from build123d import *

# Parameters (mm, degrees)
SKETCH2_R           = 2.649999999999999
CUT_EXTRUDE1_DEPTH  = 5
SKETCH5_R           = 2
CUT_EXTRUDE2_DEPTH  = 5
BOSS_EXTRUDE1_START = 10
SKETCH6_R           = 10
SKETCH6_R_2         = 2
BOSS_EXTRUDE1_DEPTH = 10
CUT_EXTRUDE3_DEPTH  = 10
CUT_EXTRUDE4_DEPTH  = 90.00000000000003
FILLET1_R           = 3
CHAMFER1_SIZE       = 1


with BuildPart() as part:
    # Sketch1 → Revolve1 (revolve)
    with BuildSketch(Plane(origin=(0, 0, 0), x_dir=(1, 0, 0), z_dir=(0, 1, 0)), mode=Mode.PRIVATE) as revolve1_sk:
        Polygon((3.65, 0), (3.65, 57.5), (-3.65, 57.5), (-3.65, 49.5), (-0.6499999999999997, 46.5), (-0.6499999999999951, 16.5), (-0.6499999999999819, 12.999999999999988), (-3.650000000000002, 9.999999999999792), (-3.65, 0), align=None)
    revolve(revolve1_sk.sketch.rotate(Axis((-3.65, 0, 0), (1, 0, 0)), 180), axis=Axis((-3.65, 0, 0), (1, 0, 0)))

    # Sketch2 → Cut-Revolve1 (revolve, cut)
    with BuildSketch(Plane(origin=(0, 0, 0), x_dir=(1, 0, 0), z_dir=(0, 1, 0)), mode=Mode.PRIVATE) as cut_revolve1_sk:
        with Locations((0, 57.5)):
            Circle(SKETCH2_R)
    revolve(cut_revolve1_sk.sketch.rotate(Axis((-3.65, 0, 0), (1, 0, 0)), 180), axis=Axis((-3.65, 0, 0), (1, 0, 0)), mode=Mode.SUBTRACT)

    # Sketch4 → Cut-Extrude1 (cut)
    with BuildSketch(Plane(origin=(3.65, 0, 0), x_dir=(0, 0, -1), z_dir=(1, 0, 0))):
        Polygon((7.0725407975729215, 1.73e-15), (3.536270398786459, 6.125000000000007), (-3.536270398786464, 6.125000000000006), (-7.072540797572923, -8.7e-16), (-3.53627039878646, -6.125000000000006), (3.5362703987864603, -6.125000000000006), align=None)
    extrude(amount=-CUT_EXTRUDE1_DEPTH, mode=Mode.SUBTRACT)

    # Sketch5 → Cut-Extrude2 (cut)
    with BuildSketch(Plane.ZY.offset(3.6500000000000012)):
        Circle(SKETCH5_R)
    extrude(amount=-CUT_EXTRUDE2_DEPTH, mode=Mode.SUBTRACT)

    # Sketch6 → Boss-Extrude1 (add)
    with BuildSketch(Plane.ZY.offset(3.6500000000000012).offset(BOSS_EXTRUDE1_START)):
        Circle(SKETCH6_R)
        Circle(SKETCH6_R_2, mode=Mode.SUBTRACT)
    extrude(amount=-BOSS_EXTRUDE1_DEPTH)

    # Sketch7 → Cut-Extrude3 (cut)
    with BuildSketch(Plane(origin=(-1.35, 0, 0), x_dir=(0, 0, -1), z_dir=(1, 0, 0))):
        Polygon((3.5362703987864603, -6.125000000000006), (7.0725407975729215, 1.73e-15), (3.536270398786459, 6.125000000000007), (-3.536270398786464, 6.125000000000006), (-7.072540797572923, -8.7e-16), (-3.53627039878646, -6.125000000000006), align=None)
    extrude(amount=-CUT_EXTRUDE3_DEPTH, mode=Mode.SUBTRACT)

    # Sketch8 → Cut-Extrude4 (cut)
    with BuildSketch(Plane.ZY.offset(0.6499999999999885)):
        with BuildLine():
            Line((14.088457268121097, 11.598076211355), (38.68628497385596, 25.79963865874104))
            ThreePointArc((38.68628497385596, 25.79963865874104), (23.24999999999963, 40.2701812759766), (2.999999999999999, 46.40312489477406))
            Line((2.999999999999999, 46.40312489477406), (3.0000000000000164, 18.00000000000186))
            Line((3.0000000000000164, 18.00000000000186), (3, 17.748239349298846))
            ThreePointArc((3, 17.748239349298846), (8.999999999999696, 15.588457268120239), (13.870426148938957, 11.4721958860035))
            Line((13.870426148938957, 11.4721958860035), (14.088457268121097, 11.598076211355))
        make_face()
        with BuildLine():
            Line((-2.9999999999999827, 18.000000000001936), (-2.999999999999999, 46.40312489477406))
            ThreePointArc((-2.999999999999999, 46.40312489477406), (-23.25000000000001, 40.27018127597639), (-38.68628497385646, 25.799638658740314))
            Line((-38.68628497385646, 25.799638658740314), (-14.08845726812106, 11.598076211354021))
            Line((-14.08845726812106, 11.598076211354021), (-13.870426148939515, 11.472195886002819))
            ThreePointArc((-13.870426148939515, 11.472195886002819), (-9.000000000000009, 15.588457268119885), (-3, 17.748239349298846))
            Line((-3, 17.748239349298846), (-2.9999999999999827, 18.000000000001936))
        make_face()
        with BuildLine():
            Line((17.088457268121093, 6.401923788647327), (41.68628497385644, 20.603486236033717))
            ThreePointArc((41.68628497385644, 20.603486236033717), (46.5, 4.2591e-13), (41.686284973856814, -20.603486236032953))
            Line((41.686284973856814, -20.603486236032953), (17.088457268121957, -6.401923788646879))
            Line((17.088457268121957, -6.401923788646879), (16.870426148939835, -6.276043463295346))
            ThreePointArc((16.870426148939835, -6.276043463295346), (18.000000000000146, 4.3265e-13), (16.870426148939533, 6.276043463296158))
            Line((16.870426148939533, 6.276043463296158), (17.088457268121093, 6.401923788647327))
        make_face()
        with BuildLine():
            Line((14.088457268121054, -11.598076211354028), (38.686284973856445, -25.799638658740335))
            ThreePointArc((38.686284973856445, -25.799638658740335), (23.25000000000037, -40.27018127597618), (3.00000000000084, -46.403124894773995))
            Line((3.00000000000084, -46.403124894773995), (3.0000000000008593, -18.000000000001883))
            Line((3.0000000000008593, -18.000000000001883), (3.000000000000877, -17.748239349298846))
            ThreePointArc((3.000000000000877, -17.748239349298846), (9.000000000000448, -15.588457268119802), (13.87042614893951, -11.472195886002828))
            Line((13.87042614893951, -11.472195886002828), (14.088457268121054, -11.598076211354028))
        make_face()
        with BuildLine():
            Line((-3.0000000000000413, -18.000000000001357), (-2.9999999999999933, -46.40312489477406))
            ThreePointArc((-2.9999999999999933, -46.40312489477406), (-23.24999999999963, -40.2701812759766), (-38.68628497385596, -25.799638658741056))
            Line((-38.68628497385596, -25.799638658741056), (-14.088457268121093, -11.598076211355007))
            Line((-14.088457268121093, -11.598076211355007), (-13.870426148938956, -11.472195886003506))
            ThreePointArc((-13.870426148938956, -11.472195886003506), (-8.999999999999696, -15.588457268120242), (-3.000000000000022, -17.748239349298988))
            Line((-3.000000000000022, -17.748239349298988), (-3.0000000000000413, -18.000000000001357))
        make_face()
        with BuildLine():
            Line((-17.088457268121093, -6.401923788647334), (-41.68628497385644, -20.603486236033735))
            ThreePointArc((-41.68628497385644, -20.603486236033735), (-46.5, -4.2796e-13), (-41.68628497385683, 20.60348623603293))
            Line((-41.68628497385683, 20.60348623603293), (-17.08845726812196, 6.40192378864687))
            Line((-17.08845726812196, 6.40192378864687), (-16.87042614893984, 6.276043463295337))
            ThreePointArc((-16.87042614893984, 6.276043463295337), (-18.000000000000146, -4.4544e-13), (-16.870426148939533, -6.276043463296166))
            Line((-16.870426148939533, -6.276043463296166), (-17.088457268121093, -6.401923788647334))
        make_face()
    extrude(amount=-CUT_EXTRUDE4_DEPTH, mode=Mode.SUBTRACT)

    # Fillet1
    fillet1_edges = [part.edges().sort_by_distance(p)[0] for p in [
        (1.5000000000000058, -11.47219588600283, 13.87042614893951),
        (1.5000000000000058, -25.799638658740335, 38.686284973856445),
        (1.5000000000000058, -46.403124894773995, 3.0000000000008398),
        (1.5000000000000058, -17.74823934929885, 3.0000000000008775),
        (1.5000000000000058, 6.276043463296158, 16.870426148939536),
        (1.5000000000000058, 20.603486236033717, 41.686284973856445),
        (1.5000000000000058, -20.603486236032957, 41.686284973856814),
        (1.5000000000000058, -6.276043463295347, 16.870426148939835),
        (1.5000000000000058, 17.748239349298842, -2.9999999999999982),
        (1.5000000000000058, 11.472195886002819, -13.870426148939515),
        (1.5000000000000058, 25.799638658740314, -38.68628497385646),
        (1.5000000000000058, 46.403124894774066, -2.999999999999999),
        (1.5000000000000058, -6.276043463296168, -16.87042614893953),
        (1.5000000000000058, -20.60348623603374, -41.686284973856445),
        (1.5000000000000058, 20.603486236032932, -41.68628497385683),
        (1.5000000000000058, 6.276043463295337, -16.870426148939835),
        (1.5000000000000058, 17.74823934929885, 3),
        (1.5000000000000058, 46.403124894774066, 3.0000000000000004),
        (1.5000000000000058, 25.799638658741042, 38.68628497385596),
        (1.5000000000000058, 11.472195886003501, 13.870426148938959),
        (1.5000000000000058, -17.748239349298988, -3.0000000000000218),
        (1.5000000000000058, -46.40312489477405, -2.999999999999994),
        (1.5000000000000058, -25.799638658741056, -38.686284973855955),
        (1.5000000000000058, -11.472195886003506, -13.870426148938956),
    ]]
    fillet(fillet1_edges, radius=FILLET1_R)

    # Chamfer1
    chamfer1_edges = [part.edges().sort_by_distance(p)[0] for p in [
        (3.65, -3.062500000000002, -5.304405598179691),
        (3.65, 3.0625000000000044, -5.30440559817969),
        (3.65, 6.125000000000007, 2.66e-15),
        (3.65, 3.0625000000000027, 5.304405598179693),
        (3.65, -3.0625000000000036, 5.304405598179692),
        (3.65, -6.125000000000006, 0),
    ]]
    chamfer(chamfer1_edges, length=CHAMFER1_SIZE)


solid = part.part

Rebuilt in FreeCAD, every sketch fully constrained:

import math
import FreeCAD as App
import Part
import Sketcher
from FreeCAD import Vector
Q = App.Units.Quantity


def edges_at(feature, points):
    """Names of the edges that pass closest to the given points."""
    edges = feature.Shape.Edges
    near = lambda p: min(range(len(edges)), key=lambda i: edges[i].distToShape(Part.Vertex(*p))[0])
    return sorted({f"Edge{near(p) + 1}" for p in points})


def add_polygon(sketch, points):
    """Adds a closed chain of lines whose ends are joined by coincident constraints."""
    first, n = sketch.GeometryCount, len(points)
    for a, b in zip(points, points[1:] + points[:1]):
        sketch.addGeometry(Part.LineSegment(App.Vector(*a, 0), App.Vector(*b, 0)), False)
    for i in range(n):
        sketch.addConstraint(Sketcher.Constraint("Coincident", first + i, 2, first + (i + 1) % n, 1))

doc = App.newDocument("Part")
body = doc.addObject("PartDesign::Body", "Body")

# Sketch on XZ plane
sketch1 = body.newObject("Sketcher::SketchObject", "Sketch")
sketch1.AttachmentSupport = (doc.getObject("XZ_Plane"), [""])
sketch1.MapMode = "FlatFace"
add_polygon(sketch1, [(3.6, 0), (3.6, -57.5), (-3.6, -57.5), (-3.6, -49.5), (-0.7, -46.5), (-0.7, -13), (-3.6, -10), (-3.6, 0)])  # lines 0-7
sketch1.addConstraint([
    Sketcher.Constraint("Vertical", 0),
    Sketcher.Constraint("Horizontal", 1),
    Sketcher.Constraint("Vertical", 2),
    Sketcher.Constraint("Vertical", 4),
    Sketcher.Constraint("Vertical", 6),
    Sketcher.Constraint("Horizontal", 7),
    Sketcher.Constraint("Symmetric", 6, 2, 7, 2, -1, 1),
    Sketcher.Constraint("Perpendicular", 3, 5),
    Sketcher.Constraint("Vertical", 2, 2, 5, 2),
    Sketcher.Constraint("Equal", 3, 5),
    Sketcher.Constraint("DistanceY", 2, 1, 2, 2, Q("8 mm")),
    Sketcher.Constraint("DistanceY", 6, 1, 6, 2, Q("10 mm")),
    Sketcher.Constraint("DistanceX", 1, 2, 1, 1, Q("7.3 mm")),
    Sketcher.Constraint("DistanceY", 0, 2, 0, 1, Q("57.5 mm")),
    Sketcher.Constraint("DistanceY", 4, 1, 4, 2, Q("33.5 mm")),
])
revolution = body.newObject("PartDesign::Revolution", "Revolution")
revolution.Profile = sketch1
revolution.ReferenceAxis = (sketch1, ["H_Axis"])
revolution.Angle = 360

# Sketch on XZ plane
sketch2 = body.newObject("Sketcher::SketchObject", "Sketch001")
sketch2.AttachmentSupport = (doc.getObject("XZ_Plane"), [""])
sketch2.MapMode = "FlatFace"
sketch2.addGeometry(Part.Circle(Vector(0, -57.5, 0), Vector(0, 0, 1), 2.6), False)
sketch2.addConstraint([
    Sketcher.Constraint("PointOnObject", 0, 3, -2),
    Sketcher.Constraint("Diameter", 0, Q("5.3 mm")),
    Sketcher.Constraint("DistanceY", 0, 3, -1, 1, Q("57.5 mm")),
])
groove = body.newObject("PartDesign::Groove", "Groove")
groove.Profile = sketch2
groove.ReferenceAxis = (sketch2, ["H_Axis"])
groove.Angle = 360

# Sketch on YZ plane
sketch3 = body.newObject("Sketcher::SketchObject", "Sketch002")
sketch3.AttachmentSupport = (doc.getObject("YZ_Plane"), [""])
sketch3.MapMode = "FlatFace"
sketch3.AttachmentOffset = App.Placement(Vector(0, 0, 3.65), App.Rotation())
add_polygon(sketch3, [(0, -7), (6, -4), (6, 4), (0, 7), (-6, 4), (-6, -4)])  # lines 0-5
sketch3.addConstraint([
    Sketcher.Constraint("Vertical", 1),
    Sketcher.Constraint("Vertical", 4),
    Sketcher.Constraint("Symmetric", 0, 2, 3, 2, -1, 1),
    Sketcher.Constraint("Symmetric", 2, 2, 5, 2, -1, 1),
    Sketcher.Constraint("PointOnObject", 2, 2, -2),
    Sketcher.Constraint("Parallel", 2, 5),
    Sketcher.Constraint("Horizontal", 1, 2, 3, 2),
    Sketcher.Constraint("Angle", 0, Q("30 deg")),
    Sketcher.Constraint("DistanceX", 3, 2, 1, 2, Q("12.25 mm")),
    Sketcher.Constraint("DistanceY", 1, 1, 1, 2, Q("7.072541 mm")),
])
pocket1 = body.newObject("PartDesign::Pocket", "Pocket")
pocket1.Profile = sketch3
pocket1.Length = 5

# Sketch on YZ plane
sketch4 = body.newObject("Sketcher::SketchObject", "Sketch003")
sketch4.AttachmentSupport = (doc.getObject("YZ_Plane"), [""])
sketch4.MapMode = "FlatFace"
sketch4.AttachmentOffset = App.Placement(Vector(0, 0, -3.65), App.Rotation())
sketch4.addGeometry(Part.Circle(Vector(0, 0, 0), Vector(0, 0, 1), 2), False)
sketch4.addConstraint([
    Sketcher.Constraint("Coincident", 0, 3, -1, 1),
    Sketcher.Constraint("Diameter", 0, Q("4 mm")),
])
pocket2 = body.newObject("PartDesign::Pocket", "Pocket001")
pocket2.Profile = sketch4
pocket2.Length = 5
pocket2.Reversed = True

# Sketch on YZ plane
sketch5 = body.newObject("Sketcher::SketchObject", "Sketch004")
sketch5.AttachmentSupport = (doc.getObject("YZ_Plane"), [""])
sketch5.MapMode = "FlatFace"
sketch5.AttachmentOffset = App.Placement(Vector(0, 0, -13.65), App.Rotation())
sketch5.addGeometry([
    Part.Circle(Vector(0, 0, 0), Vector(0, 0, 1), 10),
    Part.Circle(Vector(0, 0, 0), Vector(0, 0, 1), 2),
], False)
sketch5.addConstraint([
    Sketcher.Constraint("Coincident", 0, 3, -1, 1),
    Sketcher.Constraint("Coincident", 1, 3, -1, 1),
    Sketcher.Constraint("Diameter", 0, Q("20 mm")),
    Sketcher.Constraint("Diameter", 1, Q("4 mm")),
])
pad1 = body.newObject("PartDesign::Pad", "Pad")
pad1.Profile = sketch5
pad1.Length = 10

# Sketch on YZ plane
sketch6 = body.newObject("Sketcher::SketchObject", "Sketch005")
sketch6.AttachmentSupport = (doc.getObject("YZ_Plane"), [""])
sketch6.MapMode = "FlatFace"
sketch6.AttachmentOffset = App.Placement(Vector(0, 0, -1.35), App.Rotation())
add_polygon(sketch6, [(-6, -4), (0, -7), (6, -4), (6, 4), (0, 7), (-6, 4)])  # lines 0-5
sketch6.addConstraint([
    Sketcher.Constraint("Vertical", 2),
    Sketcher.Constraint("Vertical", 5),
    Sketcher.Constraint("Symmetric", 0, 2, 3, 2, -1, 1),
    Sketcher.Constraint("Symmetric", 1, 2, 4, 2, -1, 1),
    Sketcher.Constraint("PointOnObject", 0, 2, -2),
    Sketcher.Constraint("Parallel", 0, 3),
    Sketcher.Constraint("Horizontal", 2, 2, 4, 2),
    Sketcher.Constraint("Angle", 0, Q("-30 deg")),
    Sketcher.Constraint("DistanceX", 4, 2, 2, 2, Q("12.25 mm")),
    Sketcher.Constraint("DistanceY", 2, 1, 2, 2, Q("7.072541 mm")),
])
pocket3 = body.newObject("PartDesign::Pocket", "Pocket002")
pocket3.Profile = sketch6
pocket3.Length = 10

# Sketch on YZ plane
sketch7 = body.newObject("Sketcher::SketchObject", "Sketch006")
sketch7.AttachmentSupport = (doc.getObject("YZ_Plane"), [""])
sketch7.MapMode = "FlatFace"
sketch7.AttachmentOffset = App.Placement(Vector(0, 0, -0.65), App.Rotation())
sketch7.addGeometry([
    Part.ArcOfCircle(Part.Circle(Vector(0, 0, 0), Vector(0, 0, 1), 46), math.radians(4), math.radians(56)),  # 0
    Part.LineSegment(Vector(46, 3, 0), Vector(18, 3, 0)),  # 1
    Part.ArcOfCircle(Part.Circle(Vector(0, 0, 0), Vector(0, 0, 1), 18), math.radians(10), math.radians(50)),  # 2
    Part.LineSegment(Vector(11, 14, 0), Vector(26, 39, 0)),  # 3
    Part.ArcOfCircle(Part.Circle(Vector(0, 0, 0), Vector(0, 0, 1), 46), math.radians(-56), math.radians(-4)),  # 4
    Part.LineSegment(Vector(26, -39, 0), Vector(11, -14, 0)),  # 5
    Part.ArcOfCircle(Part.Circle(Vector(0, 0, 0), Vector(0, 0, 1), 18), math.radians(-50), math.radians(-10)),  # 6
    Part.LineSegment(Vector(18, -3, 0), Vector(46, -3, 0)),  # 7
    Part.ArcOfCircle(Part.Circle(Vector(0, 0, 0), Vector(0, 0, 1), 46), math.radians(64), math.radians(116)),  # 8
    Part.LineSegment(Vector(21, 42, 0), Vector(6, 17, 0)),  # 9
    Part.ArcOfCircle(Part.Circle(Vector(0, 0, 0), Vector(0, 0, 1), 18), math.radians(70), math.radians(110)),  # 10
    Part.LineSegment(Vector(-6, 17, 0), Vector(-21, 42, 0)),  # 11
    Part.ArcOfCircle(Part.Circle(Vector(0, 0, 0), Vector(0, 0, 1), 46), math.radians(124), math.radians(176)),  # 12
    Part.LineSegment(Vector(-26, 39, 0), Vector(-11, 14, 0)),  # 13
    Part.ArcOfCircle(Part.Circle(Vector(0, 0, 0), Vector(0, 0, 1), 18), math.radians(130), math.radians(170)),  # 14
    Part.LineSegment(Vector(-18, 3, 0), Vector(-46, 3, 0)),  # 15
    Part.ArcOfCircle(Part.Circle(Vector(0, 0, 0), Vector(0, 0, 1), 46), math.radians(-176), math.radians(-124)),  # 16
    Part.LineSegment(Vector(-46, -3, 0), Vector(-18, -3, 0)),  # 17
    Part.ArcOfCircle(Part.Circle(Vector(0, 0, 0), Vector(0, 0, 1), 18), math.radians(-170), math.radians(-130)),  # 18
    Part.LineSegment(Vector(-11, -14, 0), Vector(-26, -39, 0)),  # 19
    Part.ArcOfCircle(Part.Circle(Vector(0, 0, 0), Vector(0, 0, 1), 46), math.radians(-116), math.radians(-64)),  # 20
    Part.LineSegment(Vector(-21, -42, 0), Vector(-6, -17, 0)),  # 21
    Part.ArcOfCircle(Part.Circle(Vector(0, 0, 0), Vector(0, 0, 1), 18), math.radians(-110), math.radians(-70)),  # 22
    Part.LineSegment(Vector(6, -17, 0), Vector(21, -42, 0)),  # 23
], False)
sketch7.addConstraint([
    Sketcher.Constraint("Coincident", 0, 1, 1, 1),
    Sketcher.Constraint("Coincident", 1, 2, 2, 1),
    Sketcher.Constraint("Coincident", 2, 2, 3, 1),
    Sketcher.Constraint("Coincident", 3, 2, 0, 2),
    Sketcher.Constraint("Coincident", 4, 1, 5, 1),
    Sketcher.Constraint("Coincident", 5, 2, 6, 1),
    Sketcher.Constraint("Coincident", 6, 2, 7, 1),
    Sketcher.Constraint("Coincident", 7, 2, 4, 2),
    Sketcher.Constraint("Coincident", 8, 1, 9, 1),
    Sketcher.Constraint("Coincident", 9, 2, 10, 1),
    Sketcher.Constraint("Coincident", 10, 2, 11, 1),
    Sketcher.Constraint("Coincident", 11, 2, 8, 2),
    Sketcher.Constraint("Coincident", 12, 1, 13, 1),
    Sketcher.Constraint("Coincident", 13, 2, 14, 1),
    Sketcher.Constraint("Coincident", 14, 2, 15, 1),
    Sketcher.Constraint("Coincident", 15, 2, 12, 2),
    Sketcher.Constraint("Coincident", 16, 1, 17, 1),
    Sketcher.Constraint("Coincident", 17, 2, 18, 1),
    Sketcher.Constraint("Coincident", 18, 2, 19, 1),
    Sketcher.Constraint("Coincident", 19, 2, 16, 2),
    Sketcher.Constraint("Coincident", 20, 1, 21, 1),
    Sketcher.Constraint("Coincident", 21, 2, 22, 1),
    Sketcher.Constraint("Coincident", 22, 2, 23, 1),
    Sketcher.Constraint("Coincident", 23, 2, 20, 2),
    Sketcher.Constraint("Horizontal", 1),
    Sketcher.Constraint("Horizontal", 7),
    Sketcher.Constraint("Horizontal", 15),
    Sketcher.Constraint("Horizontal", 17),
    Sketcher.Constraint("Coincident", 0, 3, -1, 1),
    Sketcher.Constraint("Coincident", 2, 3, -1, 1),
    Sketcher.Constraint("Coincident", 4, 3, -1, 1),
    Sketcher.Constraint("Coincident", 6, 3, -1, 1),
    Sketcher.Constraint("Coincident", 8, 3, -1, 1),
    Sketcher.Constraint("Coincident", 10, 3, -1, 1),
    Sketcher.Constraint("Coincident", 12, 3, -1, 1),
    Sketcher.Constraint("Coincident", 14, 3, -1, 1),
    Sketcher.Constraint("Coincident", 16, 3, -1, 1),
    Sketcher.Constraint("Coincident", 18, 3, -1, 1),
    Sketcher.Constraint("Coincident", 20, 3, -1, 1),
    Sketcher.Constraint("Coincident", 22, 3, -1, 1),
    Sketcher.Constraint("Equal", 0, 4),
    Sketcher.Constraint("Equal", 2, 6),
    Sketcher.Constraint("Equal", 4, 8),
    Sketcher.Constraint("Equal", 6, 10),
    Sketcher.Constraint("Equal", 8, 12),
    Sketcher.Constraint("Equal", 10, 14),
    Sketcher.Constraint("Equal", 12, 16),
    Sketcher.Constraint("Equal", 14, 18),
    Sketcher.Constraint("Equal", 16, 20),
    Sketcher.Constraint("Equal", 18, 22),
    Sketcher.Constraint("Parallel", 3, 9),
    Sketcher.Constraint("Parallel", 5, 11),
    Sketcher.Constraint("Parallel", 11, 13),
    Sketcher.Constraint("Parallel", 9, 19),
    Sketcher.Constraint("Parallel", 19, 21),
    Sketcher.Constraint("Parallel", 13, 23),
    Sketcher.Constraint("Horizontal", 9, 2, 10, 2),
    Sketcher.Constraint("Horizontal", 8, 1, 11, 2),
    Sketcher.Constraint("Horizontal", 3, 2, 12, 1),
    Sketcher.Constraint("Horizontal", 1, 2, 14, 2),
    Sketcher.Constraint("Horizontal", 7, 2, 16, 1),
    Sketcher.Constraint("Horizontal", 5, 2, 18, 2),
    Sketcher.Constraint("Horizontal", 21, 2, 22, 2),
    Sketcher.Constraint("Vertical", 3, 2, 4, 1),
    Sketcher.Constraint("Vertical", 1, 2, 6, 2),
    Sketcher.Constraint("Vertical", 11, 2, 20, 1),
    Sketcher.Constraint("Equal", 5, 9),
    Sketcher.Constraint("Radius", 2, Q("18 mm")),
    Sketcher.Constraint("Radius", 0, Q("46.5 mm")),
    Sketcher.Constraint("Angle", 3, Q("60 deg")),
    Sketcher.Constraint("DistanceY", -1, 1, 0, 1, Q("3 mm")),
    Sketcher.Constraint("DistanceY", 3, 2, 8, 1, Q("3 mm")),
])
pocket4 = body.newObject("PartDesign::Pocket", "Pocket003")
pocket4.Profile = sketch7
pocket4.Length = 90
pocket4.Reversed = True
doc.recompute()

fillet = body.newObject("PartDesign::Fillet", "Fillet")
fillet.Base = (pocket4, edges_at(pocket4, [
    (1.5, -11.472, 13.87),
    (1.5, -25.8, 38.686),
    (1.5, -46.403, 3),
    (1.5, -17.748, 3),
    (1.5, 6.276, 16.87),
    (1.5, 20.603, 41.686),
    (1.5, -20.603, 41.686),
    (1.5, -6.276, 16.87),
    (1.5, 17.748, -3),
    (1.5, 11.472, -13.87),
    (1.5, 25.8, -38.686),
    (1.5, 46.403, -3),
    (1.5, -6.276, -16.87),
    (1.5, -20.603, -41.686),
    (1.5, 20.603, -41.686),
    (1.5, 6.276, -16.87),
    (1.5, 17.748, 3),
    (1.5, 46.403, 3),
    (1.5, 25.8, 38.686),
    (1.5, 11.472, 13.87),
    (1.5, -17.748, -3),
    (1.5, -46.403, -3),
    (1.5, -25.8, -38.686),
    (1.5, -11.472, -13.87),
]))
fillet.Radius = 3
doc.recompute()

chamfer = body.newObject("PartDesign::Chamfer", "Chamfer")
chamfer.Base = (fillet, edges_at(fillet, [
    (3.65, -3.062, -5.304),
    (3.65, 3.062, -5.304),
    (3.65, 6.125, 0),
    (3.65, 3.062, 5.304),
    (3.65, -3.062, 5.304),
    (3.65, -6.125, 0),
]))
chamfer.Size = 1

doc.recompute()
